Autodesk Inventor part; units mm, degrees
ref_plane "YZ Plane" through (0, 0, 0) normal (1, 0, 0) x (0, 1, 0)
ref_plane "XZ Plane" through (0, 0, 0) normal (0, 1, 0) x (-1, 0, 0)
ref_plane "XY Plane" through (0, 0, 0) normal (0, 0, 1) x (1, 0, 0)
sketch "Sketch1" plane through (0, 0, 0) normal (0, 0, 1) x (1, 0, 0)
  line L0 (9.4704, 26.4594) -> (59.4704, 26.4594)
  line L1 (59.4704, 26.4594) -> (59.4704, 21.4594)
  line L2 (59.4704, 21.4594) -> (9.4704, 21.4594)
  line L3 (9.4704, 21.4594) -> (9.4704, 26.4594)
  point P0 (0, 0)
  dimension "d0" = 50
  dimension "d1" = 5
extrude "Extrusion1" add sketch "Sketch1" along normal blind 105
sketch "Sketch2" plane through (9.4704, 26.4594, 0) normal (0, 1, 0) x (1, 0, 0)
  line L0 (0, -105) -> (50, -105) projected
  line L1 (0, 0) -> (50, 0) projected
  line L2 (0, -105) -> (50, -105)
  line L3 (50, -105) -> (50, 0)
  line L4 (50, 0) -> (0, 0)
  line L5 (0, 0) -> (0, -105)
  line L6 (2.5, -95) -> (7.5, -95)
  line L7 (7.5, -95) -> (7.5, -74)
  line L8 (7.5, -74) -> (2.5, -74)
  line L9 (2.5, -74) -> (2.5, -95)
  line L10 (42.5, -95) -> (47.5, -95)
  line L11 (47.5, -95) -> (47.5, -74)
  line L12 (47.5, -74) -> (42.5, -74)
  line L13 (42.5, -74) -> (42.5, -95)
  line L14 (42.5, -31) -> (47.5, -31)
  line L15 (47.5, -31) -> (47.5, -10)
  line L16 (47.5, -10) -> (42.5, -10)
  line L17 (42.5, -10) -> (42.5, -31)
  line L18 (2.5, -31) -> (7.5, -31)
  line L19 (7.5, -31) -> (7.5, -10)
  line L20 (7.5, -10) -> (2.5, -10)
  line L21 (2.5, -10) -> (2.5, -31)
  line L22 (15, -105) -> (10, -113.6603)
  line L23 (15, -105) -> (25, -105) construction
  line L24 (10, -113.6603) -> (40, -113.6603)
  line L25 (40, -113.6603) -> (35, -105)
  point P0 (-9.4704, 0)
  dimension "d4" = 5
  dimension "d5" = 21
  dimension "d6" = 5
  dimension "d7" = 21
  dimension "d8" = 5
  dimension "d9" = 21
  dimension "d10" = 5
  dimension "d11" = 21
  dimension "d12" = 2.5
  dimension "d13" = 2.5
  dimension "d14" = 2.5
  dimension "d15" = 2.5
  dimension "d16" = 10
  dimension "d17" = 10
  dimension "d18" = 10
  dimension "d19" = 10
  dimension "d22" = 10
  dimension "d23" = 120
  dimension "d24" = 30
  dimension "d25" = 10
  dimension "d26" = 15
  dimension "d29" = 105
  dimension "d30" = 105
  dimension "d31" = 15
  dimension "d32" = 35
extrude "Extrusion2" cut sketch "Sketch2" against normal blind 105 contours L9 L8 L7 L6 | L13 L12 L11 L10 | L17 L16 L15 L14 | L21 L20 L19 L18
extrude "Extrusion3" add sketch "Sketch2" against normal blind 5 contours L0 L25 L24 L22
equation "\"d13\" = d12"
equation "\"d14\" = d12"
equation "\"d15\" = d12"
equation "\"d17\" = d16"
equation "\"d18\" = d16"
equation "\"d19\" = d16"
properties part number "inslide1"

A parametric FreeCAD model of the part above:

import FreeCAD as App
import Part
import Sketcher
Q = App.Units.Quantity


def add_polygon(sketch, points):
    """Adds a closed chain of lines whose ends are joined by coincident constraints."""
    first, n = sketch.GeometryCount, len(points)
    for a, b in zip(points, points[1:] + points[:1]):
        sketch.addGeometry(Part.LineSegment(App.Vector(*a, 0), App.Vector(*b, 0)), False)
    for i in range(n):
        sketch.addConstraint(Sketcher.Constraint("Coincident", first + i, 2, first + (i + 1) % n, 1))

doc = App.newDocument("Part")
body = doc.addObject("PartDesign::Body", "Body")

sketch1 = body.newObject("Sketcher::SketchObject", "Sketch")
sketch1.AttachmentSupport = (doc.getObject("XY_Plane"), [""])
sketch1.MapMode = "FlatFace"
add_polygon(sketch1, [(59, 26), (9, 26), (9, 21), (59, 21)])
sketch1.addConstraint(Sketcher.Constraint("Horizontal", 0))
sketch1.addConstraint(Sketcher.Constraint("Vertical", 1))
sketch1.addConstraint(Sketcher.Constraint("Horizontal", 2))
sketch1.addConstraint(Sketcher.Constraint("Vertical", 3))
sketch1.addConstraint(Sketcher.Constraint("DistanceX", 0, 2, 0, 1, Q("50 mm")))
sketch1.addConstraint(Sketcher.Constraint("DistanceY", 1, 2, 1, 1, Q("5 mm")))
sketch1.addConstraint(Sketcher.Constraint("DistanceX", -1, 1, 0, 2, Q("9.4704 mm")))
sketch1.addConstraint(Sketcher.Constraint("DistanceY", -1, 1, 0, 2, Q("26.4594 mm")))
pad1 = body.newObject("PartDesign::Pad", "Pad")
pad1.Profile = sketch1
pad1.Length = 105

sketch2 = body.newObject("Sketcher::SketchObject", "Sketch001")
sketch2.AttachmentSupport = (doc.getObject("XZ_Plane"), [""])
sketch2.MapMode = "FlatFace"
sketch2.AttachmentOffset = App.Placement(App.Vector(0, 0, -26.4594), App.Rotation())
add_polygon(sketch2, [(12, 74), (12, 95), (17, 95), (17, 74)])
add_polygon(sketch2, [(52, 74), (52, 95), (57, 95), (57, 74)])
add_polygon(sketch2, [(52, 10), (52, 31), (57, 31), (57, 10)])
add_polygon(sketch2, [(12, 10), (12, 31), (17, 31), (17, 10)])
sketch2.addConstraint(Sketcher.Constraint("Vertical", 0))
sketch2.addConstraint(Sketcher.Constraint("Horizontal", 1))
sketch2.addConstraint(Sketcher.Constraint("Vertical", 2))
sketch2.addConstraint(Sketcher.Constraint("Horizontal", 3))
sketch2.addConstraint(Sketcher.Constraint("Vertical", 4))
sketch2.addConstraint(Sketcher.Constraint("Horizontal", 5))
sketch2.addConstraint(Sketcher.Constraint("Vertical", 6))
sketch2.addConstraint(Sketcher.Constraint("Horizontal", 7))
sketch2.addConstraint(Sketcher.Constraint("Vertical", 8))
sketch2.addConstraint(Sketcher.Constraint("Horizontal", 9))
sketch2.addConstraint(Sketcher.Constraint("Vertical", 10))
sketch2.addConstraint(Sketcher.Constraint("Horizontal", 11))
sketch2.addConstraint(Sketcher.Constraint("Vertical", 12))
sketch2.addConstraint(Sketcher.Constraint("Horizontal", 13))
sketch2.addConstraint(Sketcher.Constraint("Vertical", 14))
sketch2.addConstraint(Sketcher.Constraint("Horizontal", 15))
sketch2.addConstraint(Sketcher.Constraint("Horizontal", 1, 2, 4, 2))
sketch2.addConstraint(Sketcher.Constraint("Horizontal", 3, 2, 6, 2))
sketch2.addConstraint(Sketcher.Constraint("Horizontal", 9, 2, 12, 2))
sketch2.addConstraint(Sketcher.Constraint("Horizontal", 11, 2, 14, 2))
sketch2.addConstraint(Sketcher.Constraint("Vertical", 7, 2, 8, 2))
sketch2.addConstraint(Sketcher.Constraint("Vertical", 6, 2, 9, 2))
sketch2.addConstraint(Sketcher.Constraint("Vertical", 3, 2, 12, 2))
sketch2.addConstraint(Sketcher.Constraint("Vertical", 2, 2, 13, 2))
sketch2.addConstraint(Sketcher.Constraint("Equal", 3, 5))
sketch2.addConstraint(Sketcher.Constraint("Equal", 6, 8))
sketch2.addConstraint(Sketcher.Constraint("DistanceX", 1, 1, 1, 2, Q("5 mm")))
sketch2.addConstraint(Sketcher.Constraint("DistanceY", 0, 1, 0, 2, Q("21 mm")))
sketch2.addConstraint(Sketcher.Constraint("DistanceY", -1, 1, 10, 2, Q("10 mm")))
sketch2.addConstraint(Sketcher.Constraint("DistanceX", 1, 2, 4, 2, Q("35 mm")))
sketch2.addConstraint(Sketcher.Constraint("DistanceY", -1, 1, 0, 2, Q("95 mm")))
sketch2.addConstraint(Sketcher.Constraint("DistanceX", -1, 1, 0, 2, Q("11.9704 mm")))
pocket1 = body.newObject("PartDesign::Pocket", "Pocket")
pocket1.Profile = sketch2
pocket1.Length = 105
pocket1.Reversed = True

sketch3 = body.newObject("Sketcher::SketchObject", "Sketch002")
sketch3.AttachmentSupport = (doc.getObject("XZ_Plane"), [""])
sketch3.MapMode = "FlatFace"
sketch3.AttachmentOffset = App.Placement(App.Vector(0, 0, -26.4594), App.Rotation())
add_polygon(sketch3, [(44, 105), (24, 105), (19, 114), (49, 114)])
sketch3.addConstraint(Sketcher.Constraint("Horizontal", 0))
sketch3.addConstraint(Sketcher.Constraint("Horizontal", 2))
sketch3.addConstraint(Sketcher.Constraint("Equal", 1, 3))
sketch3.addConstraint(Sketcher.Constraint("DistanceX", 2, 1, 2, 2, Q("30 mm")))
sketch3.addConstraint(Sketcher.Constraint("Angle", 1, Q("119.9999 deg")))
sketch3.addConstraint(Sketcher.Constraint("Distance", 1, Q("10 mm")))
sketch3.addConstraint(Sketcher.Constraint("DistanceY", -1, 1, 0, 2, Q("105 mm")))
sketch3.addConstraint(Sketcher.Constraint("DistanceX", -1, 1, 0, 2, Q("24.4704 mm")))
pad2 = body.newObject("PartDesign::Pad", "Pad001")
pad2.Profile = sketch3
pad2.Length = 5

doc.recompute()
